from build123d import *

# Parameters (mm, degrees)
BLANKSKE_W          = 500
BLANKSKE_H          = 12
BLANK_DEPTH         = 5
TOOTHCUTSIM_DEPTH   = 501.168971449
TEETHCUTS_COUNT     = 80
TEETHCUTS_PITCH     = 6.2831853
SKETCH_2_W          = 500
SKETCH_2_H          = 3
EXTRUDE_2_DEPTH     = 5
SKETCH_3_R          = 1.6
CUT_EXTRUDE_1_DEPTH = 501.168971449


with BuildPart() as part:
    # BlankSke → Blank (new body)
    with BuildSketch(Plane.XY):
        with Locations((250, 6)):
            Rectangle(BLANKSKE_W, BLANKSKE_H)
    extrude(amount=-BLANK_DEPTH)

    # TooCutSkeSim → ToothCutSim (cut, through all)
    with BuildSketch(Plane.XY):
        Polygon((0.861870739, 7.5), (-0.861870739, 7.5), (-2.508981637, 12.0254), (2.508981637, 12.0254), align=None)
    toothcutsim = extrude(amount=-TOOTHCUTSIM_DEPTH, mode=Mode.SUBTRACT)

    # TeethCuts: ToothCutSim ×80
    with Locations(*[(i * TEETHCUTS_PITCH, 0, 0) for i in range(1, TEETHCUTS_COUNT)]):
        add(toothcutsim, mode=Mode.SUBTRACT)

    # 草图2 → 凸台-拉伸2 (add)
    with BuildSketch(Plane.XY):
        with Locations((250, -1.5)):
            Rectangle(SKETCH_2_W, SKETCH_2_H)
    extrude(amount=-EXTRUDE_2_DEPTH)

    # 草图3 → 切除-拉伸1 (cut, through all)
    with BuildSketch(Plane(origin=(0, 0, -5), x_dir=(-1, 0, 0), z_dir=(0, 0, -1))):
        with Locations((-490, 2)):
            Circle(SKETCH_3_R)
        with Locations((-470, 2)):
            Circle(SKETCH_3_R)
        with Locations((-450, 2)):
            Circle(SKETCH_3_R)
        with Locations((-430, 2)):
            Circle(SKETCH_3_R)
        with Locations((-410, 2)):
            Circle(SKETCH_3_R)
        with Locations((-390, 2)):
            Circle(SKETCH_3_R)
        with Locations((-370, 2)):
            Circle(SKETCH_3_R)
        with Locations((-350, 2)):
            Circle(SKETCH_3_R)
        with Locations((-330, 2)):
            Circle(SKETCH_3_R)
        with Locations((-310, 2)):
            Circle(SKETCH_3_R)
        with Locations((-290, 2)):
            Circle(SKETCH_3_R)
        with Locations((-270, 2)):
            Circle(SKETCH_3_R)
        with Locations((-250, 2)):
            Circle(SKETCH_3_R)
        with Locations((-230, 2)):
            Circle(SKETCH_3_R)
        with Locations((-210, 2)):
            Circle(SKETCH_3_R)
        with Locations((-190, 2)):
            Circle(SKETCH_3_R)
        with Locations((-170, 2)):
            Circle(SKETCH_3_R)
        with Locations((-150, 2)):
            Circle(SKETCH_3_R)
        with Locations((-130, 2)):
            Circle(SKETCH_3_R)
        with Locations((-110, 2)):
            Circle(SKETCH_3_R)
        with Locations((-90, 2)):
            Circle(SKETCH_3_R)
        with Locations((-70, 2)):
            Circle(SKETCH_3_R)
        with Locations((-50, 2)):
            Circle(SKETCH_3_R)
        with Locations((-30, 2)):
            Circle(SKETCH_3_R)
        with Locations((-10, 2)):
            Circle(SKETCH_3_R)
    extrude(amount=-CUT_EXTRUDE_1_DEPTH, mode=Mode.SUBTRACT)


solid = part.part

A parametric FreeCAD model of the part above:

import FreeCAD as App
import Part
import Sketcher
from FreeCAD import Vector
Q = App.Units.Quantity

doc = App.newDocument("Part")
body = doc.addObject("PartDesign::Body", "Body")

sketch1 = doc.addObject("Sketcher::SketchObject", "Sketch")
body.addObject(sketch1)
sketch1.AttachmentSupport = (doc.XY_Plane, [""])
sketch1.MapMode = "FlatFace"
sketch1.addGeometry([
    Part.LineSegment(Vector(0, 12, 0), Vector(0, 0, 0)),
    Part.LineSegment(Vector(0, 0, 0), Vector(500, 0, 0)),
    Part.LineSegment(Vector(500, 0, 0), Vector(500, 12, 0)),
    Part.LineSegment(Vector(500, 12, 0), Vector(0, 12, 0)),
], False)
sketch1.addConstraint([
    Sketcher.Constraint("Coincident", 0, 2, 1, 1),
    Sketcher.Constraint("Coincident", 1, 2, 2, 1),
    Sketcher.Constraint("Coincident", 2, 2, 3, 1),
    Sketcher.Constraint("Coincident", 3, 2, 0, 1),
    Sketcher.Constraint("Vertical", 0),
    Sketcher.Constraint("Horizontal", 1),
    Sketcher.Constraint("Vertical", 2),
    Sketcher.Constraint("Horizontal", 3),
    Sketcher.Constraint("Coincident", 0, 2, -1, 1),
    Sketcher.Constraint("DistanceX", 1, 1, 1, 2, Q("500 mm")),
    Sketcher.Constraint("DistanceY", 0, 2, 0, 1, Q("12 mm")),
])
pad1 = doc.addObject("PartDesign::Pad", "Pad")
body.addObject(pad1)
pad1.Profile = sketch1
pad1.Length = 5
pad1.Reversed = True

sketch2 = doc.addObject("Sketcher::SketchObject", "Sketch001")
body.addObject(sketch2)
sketch2.AttachmentSupport = (doc.XY_Plane, [""])
sketch2.MapMode = "FlatFace"
sketch2.addGeometry([
    Part.LineSegment(Vector(-0.9, 7.5, 0), Vector(0.9, 7.5, 0)),
    Part.LineSegment(Vector(0.9, 7.5, 0), Vector(2.5, 12, 0)),
    Part.LineSegment(Vector(2.5, 12, 0), Vector(-2.5, 12, 0)),
    Part.LineSegment(Vector(-2.5, 12, 0), Vector(-0.9, 7.5, 0)),
], False)
sketch2.addConstraint([
    Sketcher.Constraint("Coincident", 0, 2, 1, 1),
    Sketcher.Constraint("Coincident", 1, 2, 2, 1),
    Sketcher.Constraint("Coincident", 2, 2, 3, 1),
    Sketcher.Constraint("Coincident", 3, 2, 0, 1),
    Sketcher.Constraint("Horizontal", 0),
    Sketcher.Constraint("Horizontal", 2),
    Sketcher.Constraint("Equal", 1, 3),
    Sketcher.Constraint("Angle", 1, Q("70 deg")),
    Sketcher.Constraint("DistanceY", -1, 1, 0, 2, Q("7.5 mm")),
    Sketcher.Constraint("DistanceX", 0, 1, 0, 2, Q("1.723741 mm")),
    Sketcher.Constraint("DistanceY", -1, 1, 1, 2, Q("12.0254 mm")),
    Sketcher.Constraint("DistanceX", -1, 1, 0, 2, Q("0.861871 mm")),
])
pocket1 = doc.addObject("PartDesign::Pocket", "Pocket")
body.addObject(pocket1)
pocket1.Profile = sketch2
pocket1.Type = "ThroughAll"
doc.recompute()

linearpattern = doc.addObject("PartDesign::LinearPattern", "LinearPattern")
body.addObject(linearpattern)
linearpattern.Originals = [pocket1]
linearpattern.Direction = (doc.X_Axis, [""])
linearpattern.Mode = "offset"
linearpattern.Offset = 6.283185
linearpattern.Occurrences = 80
body.Tip = linearpattern

sketch3 = doc.addObject("Sketcher::SketchObject", "Sketch002")
body.addObject(sketch3)
sketch3.AttachmentSupport = (doc.XY_Plane, [""])
sketch3.MapMode = "FlatFace"
sketch3.addGeometry([
    Part.LineSegment(Vector(0, 0, 0), Vector(0, -3, 0)),
    Part.LineSegment(Vector(0, -3, 0), Vector(500, -3, 0)),
    Part.LineSegment(Vector(500, -3, 0), Vector(500, 0, 0)),
    Part.LineSegment(Vector(500, 0, 0), Vector(0, 0, 0)),
], False)
sketch3.addConstraint([
    Sketcher.Constraint("Coincident", 0, 2, 1, 1),
    Sketcher.Constraint("Coincident", 1, 2, 2, 1),
    Sketcher.Constraint("Coincident", 2, 2, 3, 1),
    Sketcher.Constraint("Coincident", 3, 2, 0, 1),
    Sketcher.Constraint("Vertical", 0),
    Sketcher.Constraint("Horizontal", 1),
    Sketcher.Constraint("Vertical", 2),
    Sketcher.Constraint("Horizontal", 3),
    Sketcher.Constraint("Coincident", 3, 2, -1, 1),
    Sketcher.Constraint("DistanceX", 1, 1, 1, 2, Q("500 mm")),
    Sketcher.Constraint("DistanceY", 0, 2, 0, 1, Q("3 mm")),
])
pad2 = doc.addObject("PartDesign::Pad", "Pad001")
body.addObject(pad2)
pad2.Profile = sketch3
pad2.Length = 5
pad2.Reversed = True

sketch4 = doc.addObject("Sketcher::SketchObject", "Sketch003")
body.addObject(sketch4)
sketch4.AttachmentSupport = (doc.XY_Plane, [""])
sketch4.MapMode = "FlatFace"
sketch4.AttachmentOffset = App.Placement(Vector(0, 0, -5), App.Rotation())
sketch4.addGeometry([
    Part.Circle(Vector(490, 2, 0), Vector(0, 0, 1), 1.6),
    Part.Circle(Vector(470, 2, 0), Vector(0, 0, 1), 1.6),
    Part.Circle(Vector(450, 2, 0), Vector(0, 0, 1), 1.6),
    Part.Circle(Vector(430, 2, 0), Vector(0, 0, 1), 1.6),
    Part.Circle(Vector(410, 2, 0), Vector(0, 0, 1), 1.6),
    Part.Circle(Vector(390, 2, 0), Vector(0, 0, 1), 1.6),
    Part.Circle(Vector(370, 2, 0), Vector(0, 0, 1), 1.6),
    Part.Circle(Vector(350, 2, 0), Vector(0, 0, 1), 1.6),
    Part.Circle(Vector(330, 2, 0), Vector(0, 0, 1), 1.6),
    Part.Circle(Vector(310, 2, 0), Vector(0, 0, 1), 1.6),
    Part.Circle(Vector(290, 2, 0), Vector(0, 0, 1), 1.6),
    Part.Circle(Vector(270, 2, 0), Vector(0, 0, 1), 1.6),
    Part.Circle(Vector(250, 2, 0), Vector(0, 0, 1), 1.6),
    Part.Circle(Vector(230, 2, 0), Vector(0, 0, 1), 1.6),
    Part.Circle(Vector(210, 2, 0), Vector(0, 0, 1), 1.6),
    Part.Circle(Vector(190, 2, 0), Vector(0, 0, 1), 1.6),
    Part.Circle(Vector(170, 2, 0), Vector(0, 0, 1), 1.6),
    Part.Circle(Vector(150, 2, 0), Vector(0, 0, 1), 1.6),
    Part.Circle(Vector(130, 2, 0), Vector(0, 0, 1), 1.6),
    Part.Circle(Vector(110, 2, 0), Vector(0, 0, 1), 1.6),
    Part.Circle(Vector(90, 2, 0), Vector(0, 0, 1), 1.6),
    Part.Circle(Vector(70, 2, 0), Vector(0, 0, 1), 1.6),
    Part.Circle(Vector(50, 2, 0), Vector(0, 0, 1), 1.6),
    Part.Circle(Vector(30, 2, 0), Vector(0, 0, 1), 1.6),
    Part.Circle(Vector(10, 2, 0), Vector(0, 0, 1), 1.6),
], False)
sketch4.addConstraint([
    Sketcher.Constraint("Equal", 0, 1),
    Sketcher.Constraint("Equal", 1, 2),
    Sketcher.Constraint("Equal", 2, 3),
    Sketcher.Constraint("Equal", 3, 4),
    Sketcher.Constraint("Equal", 4, 5),
    Sketcher.Constraint("Equal", 5, 6),
    Sketcher.Constraint("Equal", 6, 7),
    Sketcher.Constraint("Equal", 7, 8),
    Sketcher.Constraint("Equal", 8, 9),
    Sketcher.Constraint("Equal", 9, 10),
    Sketcher.Constraint("Equal", 10, 11),
    Sketcher.Constraint("Equal", 11, 12),
    Sketcher.Constraint("Equal", 12, 13),
    Sketcher.Constraint("Equal", 13, 14),
    Sketcher.Constraint("Equal", 14, 15),
    Sketcher.Constraint("Equal", 15, 16),
    Sketcher.Constraint("Equal", 16, 17),
    Sketcher.Constraint("Equal", 17, 18),
    Sketcher.Constraint("Equal", 18, 19),
    Sketcher.Constraint("Equal", 19, 20),
    Sketcher.Constraint("Equal", 20, 21),
    Sketcher.Constraint("Equal", 21, 22),
    Sketcher.Constraint("Equal", 22, 23),
    Sketcher.Constraint("Equal", 23, 24),
    Sketcher.Constraint("Horizontal", 0, 3, 1, 3),
    Sketcher.Constraint("Horizontal", 1, 3, 2, 3),
    Sketcher.Constraint("Horizontal", 2, 3, 3, 3),
    Sketcher.Constraint("Horizontal", 3, 3, 4, 3),
    Sketcher.Constraint("Horizontal", 4, 3, 5, 3),
    Sketcher.Constraint("Horizontal", 5, 3, 6, 3),
    Sketcher.Constraint("Horizontal", 6, 3, 7, 3),
    Sketcher.Constraint("Horizontal", 7, 3, 8, 3),
    Sketcher.Constraint("Horizontal", 8, 3, 9, 3),
    Sketcher.Constraint("Horizontal", 9, 3, 10, 3),
    Sketcher.Constraint("Horizontal", 10, 3, 11, 3),
    Sketcher.Constraint("Horizontal", 11, 3, 12, 3),
    Sketcher.Constraint("Horizontal", 12, 3, 13, 3),
    Sketcher.Constraint("Horizontal", 13, 3, 14, 3),
    Sketcher.Constraint("Horizontal", 14, 3, 15, 3),
    Sketcher.Constraint("Horizontal", 15, 3, 16, 3),
    Sketcher.Constraint("Horizontal", 16, 3, 17, 3),
    Sketcher.Constraint("Horizontal", 17, 3, 18, 3),
    Sketcher.Constraint("Horizontal", 18, 3, 19, 3),
    Sketcher.Constraint("Horizontal", 19, 3, 20, 3),
    Sketcher.Constraint("Horizontal", 20, 3, 21, 3),
    Sketcher.Constraint("Horizontal", 21, 3, 22, 3),
    Sketcher.Constraint("Horizontal", 22, 3, 23, 3),
    Sketcher.Constraint("Horizontal", 23, 3, 24, 3),
    Sketcher.Constraint("Diameter", 0, Q("3.2 mm")),
    Sketcher.Constraint("DistanceX", -1, 1, 0, 3, Q("490 mm")),
    Sketcher.Constraint("DistanceY", -1, 1, 0, 3, Q("2 mm")),
    Sketcher.Constraint("DistanceX", -1, 1, 1, 3, Q("470 mm")),
    Sketcher.Constraint("DistanceX", -1, 1, 2, 3, Q("450 mm")),
    Sketcher.Constraint("DistanceX", -1, 1, 3, 3, Q("430 mm")),
    Sketcher.Constraint("DistanceX", -1, 1, 4, 3, Q("410 mm")),
    Sketcher.Constraint("DistanceX", -1, 1, 5, 3, Q("390 mm")),
    Sketcher.Constraint("DistanceX", -1, 1, 6, 3, Q("370 mm")),
    Sketcher.Constraint("DistanceX", -1, 1, 7, 3, Q("350 mm")),
    Sketcher.Constraint("DistanceX", -1, 1, 8, 3, Q("330 mm")),
    Sketcher.Constraint("DistanceX", -1, 1, 9, 3, Q("310 mm")),
    Sketcher.Constraint("DistanceX", -1, 1, 10, 3, Q("290 mm")),
    Sketcher.Constraint("DistanceX", -1, 1, 11, 3, Q("270 mm")),
    Sketcher.Constraint("DistanceX", -1, 1, 12, 3, Q("250 mm")),
    Sketcher.Constraint("DistanceX", -1, 1, 13, 3, Q("230 mm")),
    Sketcher.Constraint("DistanceX", -1, 1, 14, 3, Q("210 mm")),
    Sketcher.Constraint("DistanceX", -1, 1, 15, 3, Q("190 mm")),
    Sketcher.Constraint("DistanceX", -1, 1, 16, 3, Q("170 mm")),
    Sketcher.Constraint("DistanceX", -1, 1, 17, 3, Q("150 mm")),
    Sketcher.Constraint("DistanceX", -1, 1, 18, 3, Q("130 mm")),
    Sketcher.Constraint("DistanceX", -1, 1, 19, 3, Q("110 mm")),
    Sketcher.Constraint("DistanceX", -1, 1, 20, 3, Q("90 mm")),
    Sketcher.Constraint("DistanceX", -1, 1, 21, 3, Q("70 mm")),
    Sketcher.Constraint("DistanceX", -1, 1, 22, 3, Q("50 mm")),
    Sketcher.Constraint("DistanceX", -1, 1, 23, 3, Q("30 mm")),
    Sketcher.Constraint("DistanceX", -1, 1, 24, 3, Q("10 mm")),
])
pocket2 = doc.addObject("PartDesign::Pocket", "Pocket001")
body.addObject(pocket2)
pocket2.Profile = sketch4
pocket2.Type = "ThroughAll"
pocket2.Reversed = True

doc.recompute()
